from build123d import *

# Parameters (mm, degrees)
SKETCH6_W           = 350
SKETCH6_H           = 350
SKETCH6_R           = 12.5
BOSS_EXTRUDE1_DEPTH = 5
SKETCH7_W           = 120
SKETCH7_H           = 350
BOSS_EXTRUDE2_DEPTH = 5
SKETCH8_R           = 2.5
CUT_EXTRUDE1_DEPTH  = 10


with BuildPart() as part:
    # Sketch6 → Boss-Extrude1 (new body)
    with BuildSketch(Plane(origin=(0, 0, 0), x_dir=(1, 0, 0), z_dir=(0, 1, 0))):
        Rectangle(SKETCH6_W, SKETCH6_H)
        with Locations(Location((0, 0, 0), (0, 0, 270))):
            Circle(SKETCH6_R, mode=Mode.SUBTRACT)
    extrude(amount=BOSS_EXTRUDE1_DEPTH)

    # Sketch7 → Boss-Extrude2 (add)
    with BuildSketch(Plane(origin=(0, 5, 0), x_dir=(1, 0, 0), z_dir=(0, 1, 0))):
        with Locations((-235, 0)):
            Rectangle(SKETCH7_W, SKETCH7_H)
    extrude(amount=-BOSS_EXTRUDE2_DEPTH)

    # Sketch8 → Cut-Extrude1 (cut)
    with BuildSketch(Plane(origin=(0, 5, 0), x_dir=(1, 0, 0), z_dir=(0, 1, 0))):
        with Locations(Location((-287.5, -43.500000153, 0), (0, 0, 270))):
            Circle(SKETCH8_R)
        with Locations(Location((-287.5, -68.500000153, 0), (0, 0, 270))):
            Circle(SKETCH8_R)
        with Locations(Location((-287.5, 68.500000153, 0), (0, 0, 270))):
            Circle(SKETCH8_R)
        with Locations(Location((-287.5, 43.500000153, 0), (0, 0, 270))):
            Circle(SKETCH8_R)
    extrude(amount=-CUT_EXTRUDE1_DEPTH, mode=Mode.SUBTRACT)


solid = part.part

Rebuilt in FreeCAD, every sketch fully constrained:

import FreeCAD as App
import Part
import Sketcher
Q = App.Units.Quantity

doc = App.newDocument("Part")
body = doc.addObject("PartDesign::Body", "Body")

sketch1 = body.newObject("Sketcher::SketchObject", "Sketch")
sketch1.AttachmentSupport = (doc.getObject("XZ_Plane"), [""])
sketch1.MapMode = "FlatFace"
sketch1.addGeometry(Part.LineSegment(App.Vector(-175, -175, 0), App.Vector(-175, 175, 0)), False)
sketch1.addGeometry(Part.LineSegment(App.Vector(-175, 175, 0), App.Vector(175, 175, 0)), False)
sketch1.addGeometry(Part.LineSegment(App.Vector(175, 175, 0), App.Vector(175, -175, 0)), False)
sketch1.addGeometry(Part.LineSegment(App.Vector(175, -175, 0), App.Vector(-175, -175, 0)), False)
sketch1.addGeometry(Part.Circle(App.Vector(0, 0, 0), App.Vector(0, 0, 1), 12.5), False)
sketch1.addConstraint(Sketcher.Constraint("Coincident", 0, 2, 1, 1))
sketch1.addConstraint(Sketcher.Constraint("Coincident", 1, 2, 2, 1))
sketch1.addConstraint(Sketcher.Constraint("Coincident", 2, 2, 3, 1))
sketch1.addConstraint(Sketcher.Constraint("Coincident", 3, 2, 0, 1))
sketch1.addConstraint(Sketcher.Constraint("Vertical", 0))
sketch1.addConstraint(Sketcher.Constraint("Horizontal", 1))
sketch1.addConstraint(Sketcher.Constraint("Vertical", 2))
sketch1.addConstraint(Sketcher.Constraint("Horizontal", 3))
sketch1.addConstraint(Sketcher.Constraint("Coincident", 4, 3, -1, 1))
sketch1.addConstraint(Sketcher.Constraint("Symmetric", 0, 2, 2, 2, -1, 1))
sketch1.addConstraint(Sketcher.Constraint("Equal", 3, 0))
sketch1.addConstraint(Sketcher.Constraint("Diameter", 4, Q("25 mm")))
sketch1.addConstraint(Sketcher.Constraint("DistanceX", 1, 1, 1, 2, Q("350 mm")))
pad1 = body.newObject("PartDesign::Pad", "Pad")
pad1.Profile = sketch1
pad1.Length = 5
pad1.Reversed = True

sketch2 = body.newObject("Sketcher::SketchObject", "Sketch001")
sketch2.AttachmentSupport = (doc.getObject("XZ_Plane"), [""])
sketch2.MapMode = "FlatFace"
sketch2.AttachmentOffset = App.Placement(App.Vector(0, 0, -5), App.Rotation())
sketch2.addGeometry(Part.LineSegment(App.Vector(-295, -175, 0), App.Vector(-295, 175, 0)), False)
sketch2.addGeometry(Part.LineSegment(App.Vector(-295, 175, 0), App.Vector(-175, 175, 0)), False)
sketch2.addGeometry(Part.LineSegment(App.Vector(-175, 175, 0), App.Vector(-175, -175, 0)), False)
sketch2.addGeometry(Part.LineSegment(App.Vector(-175, -175, 0), App.Vector(-295, -175, 0)), False)
sketch2.addConstraint(Sketcher.Constraint("Coincident", 0, 2, 1, 1))
sketch2.addConstraint(Sketcher.Constraint("Coincident", 1, 2, 2, 1))
sketch2.addConstraint(Sketcher.Constraint("Coincident", 2, 2, 3, 1))
sketch2.addConstraint(Sketcher.Constraint("Coincident", 3, 2, 0, 1))
sketch2.addConstraint(Sketcher.Constraint("Vertical", 0))
sketch2.addConstraint(Sketcher.Constraint("Horizontal", 1))
sketch2.addConstraint(Sketcher.Constraint("Vertical", 2))
sketch2.addConstraint(Sketcher.Constraint("Horizontal", 3))
sketch2.addConstraint(Sketcher.Constraint("DistanceX", 1, 1, 1, 2, Q("120 mm")))
sketch2.addConstraint(Sketcher.Constraint("DistanceY", 0, 1, 0, 2, Q("350 mm")))
sketch2.addConstraint(Sketcher.Constraint("DistanceX", 0, 2, -1, 1, Q("295 mm")))
sketch2.addConstraint(Sketcher.Constraint("DistanceY", -1, 1, 0, 2, Q("175 mm")))
pad2 = body.newObject("PartDesign::Pad", "Pad001")
pad2.Profile = sketch2
pad2.Length = 5

sketch3 = body.newObject("Sketcher::SketchObject", "Sketch002")
sketch3.AttachmentSupport = (doc.getObject("XZ_Plane"), [""])
sketch3.MapMode = "FlatFace"
sketch3.AttachmentOffset = App.Placement(App.Vector(0, 0, -5), App.Rotation())
sketch3.addGeometry(Part.Circle(App.Vector(-287.5, 43.5, 0), App.Vector(0, 0, 1), 2.5), False)
sketch3.addGeometry(Part.Circle(App.Vector(-287.5, 68.5, 0), App.Vector(0, 0, 1), 2.5), False)
sketch3.addGeometry(Part.Circle(App.Vector(-287.5, -68.5, 0), App.Vector(0, 0, 1), 2.5), False)
sketch3.addGeometry(Part.Circle(App.Vector(-287.5, -43.5, 0), App.Vector(0, 0, 1), 2.5), False)
sketch3.addConstraint(Sketcher.Constraint("Equal", 0, 1))
sketch3.addConstraint(Sketcher.Constraint("Equal", 1, 2))
sketch3.addConstraint(Sketcher.Constraint("Equal", 2, 3))
sketch3.addConstraint(Sketcher.Constraint("Symmetric", 1, 3, 2, 3, -1))
sketch3.addConstraint(Sketcher.Constraint("Symmetric", 0, 3, 3, 3, -1))
sketch3.addConstraint(Sketcher.Constraint("Vertical", 0, 3, 1, 3))
sketch3.addConstraint(Sketcher.Constraint("Diameter", 0, Q("5 mm")))
sketch3.addConstraint(Sketcher.Constraint("DistanceY", 0, 3, 1, 3, Q("25 mm")))
sketch3.addConstraint(Sketcher.Constraint("DistanceY", 2, 3, 0, 3, Q("112 mm")))
sketch3.addConstraint(Sketcher.Constraint("DistanceX", 0, 3, -1, 1, Q("287.5 mm")))
pocket1 = body.newObject("PartDesign::Pocket", "Pocket")
pocket1.Profile = sketch3
pocket1.Length = 10
pocket1.Reversed = True

doc.recompute()
